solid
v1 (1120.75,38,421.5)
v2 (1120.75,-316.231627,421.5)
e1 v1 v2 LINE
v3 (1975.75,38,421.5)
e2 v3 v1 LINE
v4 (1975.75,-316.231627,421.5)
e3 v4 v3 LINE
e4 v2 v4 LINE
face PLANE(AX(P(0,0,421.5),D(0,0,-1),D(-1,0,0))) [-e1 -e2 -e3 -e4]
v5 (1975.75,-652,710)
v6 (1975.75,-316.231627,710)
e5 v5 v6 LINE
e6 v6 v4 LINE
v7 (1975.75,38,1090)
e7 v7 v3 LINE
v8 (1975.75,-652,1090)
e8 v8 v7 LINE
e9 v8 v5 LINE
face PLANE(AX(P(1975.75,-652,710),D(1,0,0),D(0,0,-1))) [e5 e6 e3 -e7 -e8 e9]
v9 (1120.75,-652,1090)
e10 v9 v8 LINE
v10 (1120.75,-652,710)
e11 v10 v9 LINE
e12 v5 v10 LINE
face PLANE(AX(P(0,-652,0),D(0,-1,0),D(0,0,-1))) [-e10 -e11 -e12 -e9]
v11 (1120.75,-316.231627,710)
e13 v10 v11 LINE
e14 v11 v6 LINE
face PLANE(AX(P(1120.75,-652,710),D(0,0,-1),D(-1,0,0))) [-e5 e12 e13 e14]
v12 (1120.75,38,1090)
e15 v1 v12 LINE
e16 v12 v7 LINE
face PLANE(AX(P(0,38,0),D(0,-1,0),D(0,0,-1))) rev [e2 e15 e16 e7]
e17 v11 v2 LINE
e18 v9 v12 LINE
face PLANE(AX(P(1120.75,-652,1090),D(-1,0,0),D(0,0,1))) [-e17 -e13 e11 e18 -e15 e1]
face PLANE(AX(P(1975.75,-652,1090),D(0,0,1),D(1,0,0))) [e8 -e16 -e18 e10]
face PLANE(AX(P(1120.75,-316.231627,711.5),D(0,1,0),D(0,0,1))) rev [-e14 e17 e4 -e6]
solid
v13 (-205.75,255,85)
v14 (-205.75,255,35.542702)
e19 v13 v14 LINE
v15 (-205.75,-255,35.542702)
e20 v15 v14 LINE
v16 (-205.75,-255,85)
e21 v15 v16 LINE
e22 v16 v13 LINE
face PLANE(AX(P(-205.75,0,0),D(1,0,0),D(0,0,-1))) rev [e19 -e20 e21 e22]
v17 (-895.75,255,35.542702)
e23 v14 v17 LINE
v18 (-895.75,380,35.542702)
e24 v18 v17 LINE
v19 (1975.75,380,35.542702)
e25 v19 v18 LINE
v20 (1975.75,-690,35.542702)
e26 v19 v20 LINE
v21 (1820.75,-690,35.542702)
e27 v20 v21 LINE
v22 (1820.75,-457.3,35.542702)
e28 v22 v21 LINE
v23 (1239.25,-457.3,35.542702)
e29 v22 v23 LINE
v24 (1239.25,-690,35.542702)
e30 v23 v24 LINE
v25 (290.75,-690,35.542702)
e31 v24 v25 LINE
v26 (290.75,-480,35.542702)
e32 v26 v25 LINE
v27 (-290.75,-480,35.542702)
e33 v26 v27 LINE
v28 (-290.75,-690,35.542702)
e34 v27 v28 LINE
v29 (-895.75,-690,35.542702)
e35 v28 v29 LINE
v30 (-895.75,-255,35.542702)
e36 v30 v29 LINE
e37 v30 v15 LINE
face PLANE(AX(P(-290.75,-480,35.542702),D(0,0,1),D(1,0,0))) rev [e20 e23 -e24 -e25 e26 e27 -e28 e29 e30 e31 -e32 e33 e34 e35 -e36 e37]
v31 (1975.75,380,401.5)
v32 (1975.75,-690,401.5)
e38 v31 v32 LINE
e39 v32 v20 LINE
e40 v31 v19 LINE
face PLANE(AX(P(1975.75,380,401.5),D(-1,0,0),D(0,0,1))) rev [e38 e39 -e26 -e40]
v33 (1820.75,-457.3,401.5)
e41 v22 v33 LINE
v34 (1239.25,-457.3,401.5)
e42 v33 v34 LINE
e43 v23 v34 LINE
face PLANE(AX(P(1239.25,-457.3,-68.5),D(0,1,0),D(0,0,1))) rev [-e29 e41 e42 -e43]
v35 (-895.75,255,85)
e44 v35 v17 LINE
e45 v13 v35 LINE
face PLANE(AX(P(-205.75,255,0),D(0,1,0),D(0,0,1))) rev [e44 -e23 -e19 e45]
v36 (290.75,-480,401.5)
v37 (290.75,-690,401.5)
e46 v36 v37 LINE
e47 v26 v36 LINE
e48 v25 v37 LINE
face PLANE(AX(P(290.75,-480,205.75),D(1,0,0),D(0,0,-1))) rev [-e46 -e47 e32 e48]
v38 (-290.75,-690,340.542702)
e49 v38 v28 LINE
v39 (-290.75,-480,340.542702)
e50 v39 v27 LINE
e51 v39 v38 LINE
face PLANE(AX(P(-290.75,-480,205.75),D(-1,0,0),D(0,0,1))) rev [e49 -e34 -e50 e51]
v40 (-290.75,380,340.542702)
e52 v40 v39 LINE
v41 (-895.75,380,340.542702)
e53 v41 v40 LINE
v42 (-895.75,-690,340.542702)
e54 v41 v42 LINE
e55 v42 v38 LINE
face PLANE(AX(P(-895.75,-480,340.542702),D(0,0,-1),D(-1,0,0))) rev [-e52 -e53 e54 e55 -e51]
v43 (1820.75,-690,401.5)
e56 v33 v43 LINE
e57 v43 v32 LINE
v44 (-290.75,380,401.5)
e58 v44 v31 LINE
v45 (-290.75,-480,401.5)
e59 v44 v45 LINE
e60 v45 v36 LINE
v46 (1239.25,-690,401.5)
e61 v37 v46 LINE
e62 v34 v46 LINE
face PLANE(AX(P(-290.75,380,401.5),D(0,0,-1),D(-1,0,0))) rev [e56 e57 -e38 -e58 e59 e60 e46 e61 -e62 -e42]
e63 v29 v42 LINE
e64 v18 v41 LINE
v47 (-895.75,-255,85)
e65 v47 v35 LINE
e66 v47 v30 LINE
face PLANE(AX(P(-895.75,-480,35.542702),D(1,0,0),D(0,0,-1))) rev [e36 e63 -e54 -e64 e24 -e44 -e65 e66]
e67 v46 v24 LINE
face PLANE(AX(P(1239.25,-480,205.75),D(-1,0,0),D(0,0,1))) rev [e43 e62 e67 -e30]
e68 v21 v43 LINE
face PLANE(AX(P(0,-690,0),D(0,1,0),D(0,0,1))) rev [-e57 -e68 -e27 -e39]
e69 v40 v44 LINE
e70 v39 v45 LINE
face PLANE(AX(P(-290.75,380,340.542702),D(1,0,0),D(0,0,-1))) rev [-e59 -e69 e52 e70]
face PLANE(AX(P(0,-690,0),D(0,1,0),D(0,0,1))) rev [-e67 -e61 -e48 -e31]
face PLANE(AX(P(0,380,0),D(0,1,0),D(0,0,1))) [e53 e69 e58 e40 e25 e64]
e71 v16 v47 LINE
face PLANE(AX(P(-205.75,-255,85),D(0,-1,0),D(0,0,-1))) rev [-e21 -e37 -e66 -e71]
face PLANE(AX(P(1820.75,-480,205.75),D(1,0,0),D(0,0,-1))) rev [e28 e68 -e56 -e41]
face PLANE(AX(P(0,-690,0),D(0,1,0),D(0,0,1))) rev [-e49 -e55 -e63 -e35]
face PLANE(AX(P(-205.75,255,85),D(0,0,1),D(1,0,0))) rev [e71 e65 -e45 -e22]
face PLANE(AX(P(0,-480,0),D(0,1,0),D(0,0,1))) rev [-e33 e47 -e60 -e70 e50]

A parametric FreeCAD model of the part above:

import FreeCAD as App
import Part
import Sketcher
from FreeCAD import Vector
Q = App.Units.Quantity

doc = App.newDocument("Part")
body = doc.addObject("PartDesign::Body", "Body")

# Sketch on XZ plane
sketch1 = doc.addObject("Sketcher::SketchObject", "Sketch")
body.addObject(sketch1)
sketch1.AttachmentSupport = (doc.XZ_Plane, [""])
sketch1.MapMode = "FlatFace"
sketch1.AttachmentOffset = App.Placement(Vector(0, 0, 690), App.Rotation())
sketch1.addGeometry([
    Part.LineSegment(Vector(-291, 36, 0), Vector(-896, 36, 0)),
    Part.LineSegment(Vector(-896, 36, 0), Vector(-896, 341, 0)),
    Part.LineSegment(Vector(-896, 341, 0), Vector(-291, 341, 0)),
    Part.LineSegment(Vector(-291, 341, 0), Vector(-291, 36, 0)),
], False)
sketch1.addConstraint([
    Sketcher.Constraint("Coincident", 0, 2, 1, 1),
    Sketcher.Constraint("Coincident", 1, 2, 2, 1),
    Sketcher.Constraint("Coincident", 2, 2, 3, 1),
    Sketcher.Constraint("Coincident", 3, 2, 0, 1),
    Sketcher.Constraint("Horizontal", 0),
    Sketcher.Constraint("Vertical", 1),
    Sketcher.Constraint("Horizontal", 2),
    Sketcher.Constraint("Vertical", 3),
    Sketcher.Constraint("DistanceX", 0, 2, 0, 1, Q("605 mm")),
    Sketcher.Constraint("DistanceY", 1, 1, 1, 2, Q("305 mm")),
    Sketcher.Constraint("DistanceX", 0, 2, -1, 1, Q("895.75 mm")),
    Sketcher.Constraint("DistanceY", -1, 1, 0, 2, Q("35.542702 mm")),
])
pad1 = doc.addObject("PartDesign::Pad", "Pad")
body.addObject(pad1)
pad1.Profile = sketch1
pad1.Length = 210
pad1.Reversed = True
body2 = doc.addObject("PartDesign::Body", "Body001")

# Sketch on XZ plane
sketch2 = doc.addObject("Sketcher::SketchObject", "Sketch001")
body2.addObject(sketch2)
sketch2.AttachmentSupport = (doc.getObject("XZ_Plane001"), [""])
sketch2.MapMode = "FlatFace"
sketch2.AttachmentOffset = App.Placement(Vector(0, 0, 690), App.Rotation())
sketch2.addGeometry([
    Part.LineSegment(Vector(291, 402, 0), Vector(1239, 402, 0)),
    Part.LineSegment(Vector(1239, 402, 0), Vector(1239, 36, 0)),
    Part.LineSegment(Vector(1239, 36, 0), Vector(291, 36, 0)),
    Part.LineSegment(Vector(291, 36, 0), Vector(291, 402, 0)),
], False)
sketch2.addConstraint([
    Sketcher.Constraint("Coincident", 0, 2, 1, 1),
    Sketcher.Constraint("Coincident", 1, 2, 2, 1),
    Sketcher.Constraint("Coincident", 2, 2, 3, 1),
    Sketcher.Constraint("Coincident", 3, 2, 0, 1),
    Sketcher.Constraint("Horizontal", 0),
    Sketcher.Constraint("Vertical", 1),
    Sketcher.Constraint("Horizontal", 2),
    Sketcher.Constraint("Vertical", 3),
    Sketcher.Constraint("DistanceX", 0, 1, 0, 2, Q("948.5 mm")),
    Sketcher.Constraint("DistanceY", -1, 1, 0, 2, Q("401.5 mm")),
    Sketcher.Constraint("DistanceX", -1, 1, 0, 2, Q("1239.25 mm")),
    Sketcher.Constraint("DistanceY", 1, 2, 1, 1, Q("365.957298 mm")),
])
pad2 = doc.addObject("PartDesign::Pad", "Pad001")
body2.addObject(pad2)
pad2.Profile = sketch2
pad2.Length = 210
pad2.Reversed = True
body3 = doc.addObject("PartDesign::Body", "Body002")

# Sketch on XZ plane
sketch3 = doc.addObject("Sketcher::SketchObject", "Sketch002")
body3.addObject(sketch3)
sketch3.AttachmentSupport = (doc.getObject("XZ_Plane002"), [""])
sketch3.MapMode = "FlatFace"
sketch3.AttachmentOffset = App.Placement(Vector(0, 0, 690), App.Rotation())
sketch3.addGeometry([
    Part.LineSegment(Vector(1821, 36, 0), Vector(1821, 402, 0)),
    Part.LineSegment(Vector(1821, 402, 0), Vector(1976, 402, 0)),
    Part.LineSegment(Vector(1976, 402, 0), Vector(1976, 36, 0)),
    Part.LineSegment(Vector(1976, 36, 0), Vector(1821, 36, 0)),
], False)
sketch3.addConstraint([
    Sketcher.Constraint("Coincident", 0, 2, 1, 1),
    Sketcher.Constraint("Coincident", 1, 2, 2, 1),
    Sketcher.Constraint("Coincident", 2, 2, 3, 1),
    Sketcher.Constraint("Coincident", 3, 2, 0, 1),
    Sketcher.Constraint("Vertical", 0),
    Sketcher.Constraint("Horizontal", 1),
    Sketcher.Constraint("Vertical", 2),
    Sketcher.Constraint("Horizontal", 3),
    Sketcher.Constraint("DistanceX", 1, 1, 1, 2, Q("155 mm")),
    Sketcher.Constraint("DistanceY", -1, 1, 0, 2, Q("401.5 mm")),
    Sketcher.Constraint("DistanceX", -1, 1, 0, 2, Q("1820.75 mm")),
    Sketcher.Constraint("DistanceY", 0, 1, 0, 2, Q("365.957298 mm")),
])
pad3 = doc.addObject("PartDesign::Pad", "Pad002")
body3.addObject(pad3)
pad3.Profile = sketch3
pad3.Length = 210
pad3.Reversed = True
body.AllowCompound = True
doc.recompute()

boolean = doc.addObject("PartDesign::Boolean", "Boolean")
body.addObject(boolean)
boolean.Type = "Fuse"
boolean.addObjects([body2])
doc.recompute()

boolean2 = doc.addObject("PartDesign::Boolean", "Boolean001")
body.addObject(boolean2)
boolean2.Type = "Fuse"
boolean2.addObjects([body3])

# Sketch on XZ plane
sketch4 = doc.addObject("Sketcher::SketchObject", "Sketch003")
body.addObject(sketch4)
sketch4.AttachmentSupport = (doc.XZ_Plane, [""])
sketch4.MapMode = "FlatFace"
sketch4.AttachmentOffset = App.Placement(Vector(0, 0, 480), App.Rotation())
sketch4.addGeometry([
    Part.LineSegment(Vector(1976, 36, 0), Vector(-896, 36, 0)),  # 0
    Part.LineSegment(Vector(-896, 36, 0), Vector(-896, 341, 0)),  # 1
    Part.LineSegment(Vector(-896, 341, 0), Vector(-291, 341, 0)),  # 2
    Part.LineSegment(Vector(-291, 341, 0), Vector(-291, 402, 0)),  # 3
    Part.LineSegment(Vector(-291, 402, 0), Vector(1976, 402, 0)),  # 4
    Part.LineSegment(Vector(1976, 402, 0), Vector(1976, 36, 0)),  # 5
], False)
sketch4.addConstraint([
    Sketcher.Constraint("Coincident", 0, 2, 1, 1),
    Sketcher.Constraint("Coincident", 1, 2, 2, 1),
    Sketcher.Constraint("Coincident", 2, 2, 3, 1),
    Sketcher.Constraint("Coincident", 3, 2, 4, 1),
    Sketcher.Constraint("Coincident", 4, 2, 5, 1),
    Sketcher.Constraint("Coincident", 5, 2, 0, 1),
    Sketcher.Constraint("Horizontal", 0),
    Sketcher.Constraint("Vertical", 1),
    Sketcher.Constraint("Horizontal", 2),
    Sketcher.Constraint("Vertical", 3),
    Sketcher.Constraint("Horizontal", 4),
    Sketcher.Constraint("Vertical", 5),
    Sketcher.Constraint("DistanceX", 2, 1, 2, 2, Q("605 mm")),
    Sketcher.Constraint("DistanceY", 1, 1, 1, 2, Q("305 mm")),
    Sketcher.Constraint("DistanceX", 0, 2, 0, 1, Q("2871.5 mm")),
    Sketcher.Constraint("DistanceY", -1, 1, 3, 2, Q("401.5 mm")),
    Sketcher.Constraint("DistanceX", 0, 2, -1, 1, Q("895.75 mm")),
    Sketcher.Constraint("DistanceY", 3, 1, 3, 2, Q("60.957298 mm")),
])
pad4 = doc.addObject("PartDesign::Pad", "Pad003")
body.addObject(pad4)
pad4.Profile = sketch4
pad4.Length = 860
pad4.Reversed = True

# Sketch on XY plane
sketch5 = doc.addObject("Sketcher::SketchObject", "Sketch004")
body.addObject(sketch5)
sketch5.AttachmentSupport = (doc.XY_Plane, [""])
sketch5.MapMode = "FlatFace"
sketch5.AttachmentOffset = App.Placement(Vector(0, 0, 401.5), App.Rotation())
sketch5.addGeometry([
    Part.LineSegment(Vector(1239, -457, 0), Vector(1239, -480, 0)),
    Part.LineSegment(Vector(1239, -480, 0), Vector(1821, -480, 0)),
    Part.LineSegment(Vector(1821, -480, 0), Vector(1821, -457, 0)),
    Part.LineSegment(Vector(1821, -457, 0), Vector(1239, -457, 0)),
], False)
sketch5.addConstraint([
    Sketcher.Constraint("Coincident", 0, 2, 1, 1),
    Sketcher.Constraint("Coincident", 1, 2, 2, 1),
    Sketcher.Constraint("Coincident", 2, 2, 3, 1),
    Sketcher.Constraint("Coincident", 3, 2, 0, 1),
    Sketcher.Constraint("Vertical", 0),
    Sketcher.Constraint("Horizontal", 1),
    Sketcher.Constraint("Vertical", 2),
    Sketcher.Constraint("Horizontal", 3),
    Sketcher.Constraint("DistanceX", 1, 1, 1, 2, Q("581.5 mm")),
    Sketcher.Constraint("DistanceY", 0, 2, 0, 1, Q("22.7 mm")),
    Sketcher.Constraint("DistanceY", 0, 2, -1, 1, Q("480 mm")),
    Sketcher.Constraint("DistanceX", -1, 1, 0, 2, Q("1239.25 mm")),
])
pocket1 = doc.addObject("PartDesign::Pocket", "Pocket")
body.addObject(pocket1)
pocket1.Profile = sketch5
pocket1.Length = 470

# Sketch on YZ plane
sketch6 = doc.addObject("Sketcher::SketchObject", "Sketch005")
body.addObject(sketch6)
sketch6.AttachmentSupport = (doc.YZ_Plane, [""])
sketch6.MapMode = "FlatFace"
sketch6.AttachmentOffset = App.Placement(Vector(0, 0, -895.75), App.Rotation())
sketch6.addGeometry([
    Part.LineSegment(Vector(255, 0, 0), Vector(-255, 0, 0)),
    Part.LineSegment(Vector(-255, 0, 0), Vector(-255, 85, 0)),
    Part.LineSegment(Vector(-255, 85, 0), Vector(255, 85, 0)),
    Part.LineSegment(Vector(255, 85, 0), Vector(255, 0, 0)),
], False)
sketch6.addConstraint([
    Sketcher.Constraint("Coincident", 0, 2, 1, 1),
    Sketcher.Constraint("Coincident", 1, 2, 2, 1),
    Sketcher.Constraint("Coincident", 2, 2, 3, 1),
    Sketcher.Constraint("Coincident", 3, 2, 0, 1),
    Sketcher.Constraint("Horizontal", 0),
    Sketcher.Constraint("Vertical", 1),
    Sketcher.Constraint("Horizontal", 2),
    Sketcher.Constraint("Vertical", 3),
    Sketcher.Constraint("Symmetric", 0, 2, 3, 2, -1, 1),
    Sketcher.Constraint("DistanceX", 0, 2, 0, 1, Q("510 mm")),
    Sketcher.Constraint("DistanceY", 1, 1, 1, 2, Q("85 mm")),
])
pocket2 = doc.addObject("PartDesign::Pocket", "Pocket001")
body.addObject(pocket2)
pocket2.Profile = sketch6
pocket2.Length = 690
pocket2.Reversed = True
body4 = doc.addObject("PartDesign::Body", "Body003")

# Sketch on XZ plane
sketch7 = doc.addObject("Sketcher::SketchObject", "Sketch006")
body4.addObject(sketch7)
sketch7.AttachmentSupport = (doc.getObject("XZ_Plane003"), [""])
sketch7.MapMode = "FlatFace"
sketch7.AttachmentOffset = App.Placement(Vector(0, 0, 452), App.Rotation())
sketch7.addGeometry([
    Part.LineSegment(Vector(1121, 710, 0), Vector(1121, 1090, 0)),
    Part.LineSegment(Vector(1121, 1090, 0), Vector(1976, 1090, 0)),
    Part.LineSegment(Vector(1976, 1090, 0), Vector(1976, 710, 0)),
    Part.LineSegment(Vector(1976, 710, 0), Vector(1121, 710, 0)),
], False)
sketch7.addConstraint([
    Sketcher.Constraint("Coincident", 0, 2, 1, 1),
    Sketcher.Constraint("Coincident", 1, 2, 2, 1),
    Sketcher.Constraint("Coincident", 2, 2, 3, 1),
    Sketcher.Constraint("Coincident", 3, 2, 0, 1),
    Sketcher.Constraint("Vertical", 0),
    Sketcher.Constraint("Horizontal", 1),
    Sketcher.Constraint("Vertical", 2),
    Sketcher.Constraint("Horizontal", 3),
    Sketcher.Constraint("DistanceX", 1, 1, 1, 2, Q("855 mm")),
    Sketcher.Constraint("DistanceY", 0, 1, 0, 2, Q("380 mm")),
    Sketcher.Constraint("DistanceY", -1, 1, 0, 2, Q("1090 mm")),
    Sketcher.Constraint("DistanceX", -1, 1, 0, 2, Q("1120.75 mm")),
])
pad5 = doc.addObject("PartDesign::Pad", "Pad004")
body4.addObject(pad5)
pad5.Profile = sketch7
pad5.Type = "TwoLengths"
pad5.Length = 490
pad5.Length2 = 200
pad5.Reversed = True

# Sketch on XY plane
sketch8 = doc.addObject("Sketcher::SketchObject", "Sketch007")
body4.addObject(sketch8)
sketch8.AttachmentSupport = (doc.getObject("XY_Plane003"), [""])
sketch8.MapMode = "FlatFace"
sketch8.AttachmentOffset = App.Placement(Vector(0, 0, 421.5), App.Rotation())
sketch8.addGeometry([
    Part.LineSegment(Vector(1121, 38, 0), Vector(1121, -316, 0)),
    Part.LineSegment(Vector(1121, -316, 0), Vector(1976, -316, 0)),
    Part.LineSegment(Vector(1976, -316, 0), Vector(1976, 38, 0)),
    Part.LineSegment(Vector(1976, 38, 0), Vector(1121, 38, 0)),
], False)
sketch8.addConstraint([
    Sketcher.Constraint("Coincident", 0, 2, 1, 1),
    Sketcher.Constraint("Coincident", 1, 2, 2, 1),
    Sketcher.Constraint("Coincident", 2, 2, 3, 1),
    Sketcher.Constraint("Coincident", 3, 2, 0, 1),
    Sketcher.Constraint("Vertical", 0),
    Sketcher.Constraint("Horizontal", 1),
    Sketcher.Constraint("Vertical", 2),
    Sketcher.Constraint("Horizontal", 3),
    Sketcher.Constraint("DistanceX", 1, 1, 1, 2, Q("855 mm")),
    Sketcher.Constraint("DistanceY", -1, 1, 2, 2, Q("38 mm")),
    Sketcher.Constraint("DistanceX", -1, 1, 0, 2, Q("1120.75 mm")),
    Sketcher.Constraint("DistanceY", 0, 2, 0, 1, Q("354.231627 mm")),
])
pad6 = doc.addObject("PartDesign::Pad", "Pad005")
body4.addObject(pad6)
pad6.Profile = sketch8
pad6.Length = 290

doc.recompute()
